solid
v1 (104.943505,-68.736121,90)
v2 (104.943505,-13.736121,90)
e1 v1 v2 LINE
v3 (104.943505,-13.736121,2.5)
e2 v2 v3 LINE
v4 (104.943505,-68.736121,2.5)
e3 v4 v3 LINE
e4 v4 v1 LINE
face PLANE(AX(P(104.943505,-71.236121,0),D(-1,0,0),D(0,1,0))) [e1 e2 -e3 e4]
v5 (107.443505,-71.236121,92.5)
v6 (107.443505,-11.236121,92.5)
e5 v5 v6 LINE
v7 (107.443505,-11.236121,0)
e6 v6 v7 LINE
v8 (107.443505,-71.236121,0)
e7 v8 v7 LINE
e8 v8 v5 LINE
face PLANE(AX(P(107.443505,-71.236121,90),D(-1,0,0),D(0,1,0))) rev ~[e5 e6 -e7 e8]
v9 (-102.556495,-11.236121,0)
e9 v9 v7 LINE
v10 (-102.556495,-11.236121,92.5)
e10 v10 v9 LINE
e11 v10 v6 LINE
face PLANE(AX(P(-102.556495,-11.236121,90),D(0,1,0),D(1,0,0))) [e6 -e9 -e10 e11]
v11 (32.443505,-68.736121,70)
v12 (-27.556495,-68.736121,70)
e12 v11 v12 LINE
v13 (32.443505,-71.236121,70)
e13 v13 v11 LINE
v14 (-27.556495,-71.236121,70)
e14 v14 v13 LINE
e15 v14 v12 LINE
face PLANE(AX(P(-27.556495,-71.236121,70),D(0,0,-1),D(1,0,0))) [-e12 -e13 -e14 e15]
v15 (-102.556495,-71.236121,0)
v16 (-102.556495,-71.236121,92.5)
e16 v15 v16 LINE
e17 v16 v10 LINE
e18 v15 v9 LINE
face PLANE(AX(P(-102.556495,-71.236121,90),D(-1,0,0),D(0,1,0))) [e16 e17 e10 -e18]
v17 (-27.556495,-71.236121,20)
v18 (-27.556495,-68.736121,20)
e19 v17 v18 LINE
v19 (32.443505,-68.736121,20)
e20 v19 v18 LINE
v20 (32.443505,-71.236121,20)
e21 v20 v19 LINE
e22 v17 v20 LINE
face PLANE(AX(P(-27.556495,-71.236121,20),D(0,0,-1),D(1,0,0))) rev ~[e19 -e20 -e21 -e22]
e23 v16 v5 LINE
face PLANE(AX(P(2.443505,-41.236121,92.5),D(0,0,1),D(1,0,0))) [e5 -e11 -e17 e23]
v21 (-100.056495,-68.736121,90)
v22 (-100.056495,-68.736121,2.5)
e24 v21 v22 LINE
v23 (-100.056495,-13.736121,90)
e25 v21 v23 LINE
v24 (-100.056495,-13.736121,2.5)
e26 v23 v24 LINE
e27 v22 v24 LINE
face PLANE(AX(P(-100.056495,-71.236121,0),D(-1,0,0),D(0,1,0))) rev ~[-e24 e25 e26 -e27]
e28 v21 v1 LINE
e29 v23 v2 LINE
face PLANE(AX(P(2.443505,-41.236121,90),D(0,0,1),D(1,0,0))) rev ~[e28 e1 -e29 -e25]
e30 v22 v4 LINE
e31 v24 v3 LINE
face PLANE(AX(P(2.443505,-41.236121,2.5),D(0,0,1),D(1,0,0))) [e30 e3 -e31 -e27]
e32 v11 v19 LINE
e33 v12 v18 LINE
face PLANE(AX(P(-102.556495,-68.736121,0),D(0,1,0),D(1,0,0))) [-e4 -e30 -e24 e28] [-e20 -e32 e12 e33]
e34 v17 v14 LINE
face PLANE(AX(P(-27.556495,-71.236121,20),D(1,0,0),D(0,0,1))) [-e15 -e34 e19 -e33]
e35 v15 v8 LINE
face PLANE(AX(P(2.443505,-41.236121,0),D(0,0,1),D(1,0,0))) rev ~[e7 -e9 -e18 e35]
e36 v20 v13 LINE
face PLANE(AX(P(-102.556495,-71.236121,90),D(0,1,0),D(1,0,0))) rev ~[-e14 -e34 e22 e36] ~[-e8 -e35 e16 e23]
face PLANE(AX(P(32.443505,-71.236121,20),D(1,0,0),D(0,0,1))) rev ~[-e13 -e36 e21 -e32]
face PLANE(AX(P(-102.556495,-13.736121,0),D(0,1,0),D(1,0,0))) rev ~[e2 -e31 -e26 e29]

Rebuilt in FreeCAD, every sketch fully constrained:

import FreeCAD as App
import Part
import Sketcher

V = App.Vector


def faces_at(feature, points):
    """Names of the faces that lie closest to the given points."""
    faces = feature.Shape.Faces
    near = lambda p: min(range(len(faces)), key=lambda i: faces[i].distToShape(Part.Vertex(*p))[0])
    return sorted({f"Face{near(p) + 1}" for p in points})


def add_polygon(sketch, points):
    """Adds a closed chain of lines whose ends are joined by coincident constraints."""
    first, n = sketch.GeometryCount, len(points)
    for a, b in zip(points, points[1:] + points[:1]):
        sketch.addGeometry(Part.LineSegment(App.Vector(*a, 0), App.Vector(*b, 0)), False)
    for i in range(n):
        sketch.addConstraint(Sketcher.Constraint("Coincident", first + i, 2, first + (i + 1) % n, 1))

doc = App.newDocument("Part")
body = doc.addObject("PartDesign::Body", "Body")

sketch1 = body.newObject("Sketcher::SketchObject", "Sketch")
sketch1.AttachmentSupport = (doc.getObject("XY_Plane"), [""])
sketch1.MapMode = "FlatFace"
add_polygon(sketch1, [(-102.556495, -11.236121), (-102.556495, -71.236121), (107.443505, -71.236121), (107.443505, -11.236121)])
sketch1.addConstraint([
    Sketcher.Constraint("Vertical", 0),
    Sketcher.Constraint("Horizontal", 1),
    Sketcher.Constraint("Vertical", 2),
    Sketcher.Constraint("Horizontal", 3),
    Sketcher.Constraint("DistanceX", 1, 1, 1, 2, 210.0),
    Sketcher.Constraint("DistanceY", 0, 2, 0, 1, 60.0),
    Sketcher.Constraint("DistanceY", 0, 2, -1, 1, 71.236121),
    Sketcher.Constraint("DistanceX", 0, 2, -1, 1, 102.556495),
])
pad1 = body.newObject("PartDesign::Pad", "Pad")
pad1.Profile = sketch1
pad1.Length = 90
doc.recompute()

thickness = body.newObject("PartDesign::Thickness", "Thickness")
thickness.Base = (pad1, faces_at(pad1, [(2.444, -41.236, 90)]))
thickness.Value = 2.5
thickness.Reversed = True
thickness.Join = "Arc"

sketch2 = body.newObject("Sketcher::SketchObject", "Sketch001")
sketch2.AttachmentSupport = (doc.getObject("XY_Plane"), [""])
sketch2.MapMode = "FlatFace"
sketch2.AttachmentOffset = App.Placement(V(0, 0, 90), App.Rotation())
add_polygon(sketch2, [(-102.556495, -11.236121), (-102.556495, -71.236121), (107.443505, -71.236121), (107.443505, -11.236121)])
sketch2.addConstraint([
    Sketcher.Constraint("Vertical", 0),
    Sketcher.Constraint("Horizontal", 1),
    Sketcher.Constraint("Vertical", 2),
    Sketcher.Constraint("Horizontal", 3),
    Sketcher.Constraint("DistanceX", 1, 1, 1, 2, 210.0),
    Sketcher.Constraint("DistanceY", 0, 2, 0, 1, 60.0),
    Sketcher.Constraint("DistanceY", 0, 2, -1, 1, 71.236121),
    Sketcher.Constraint("DistanceX", 0, 2, -1, 1, 102.556495),
])
pad2 = body.newObject("PartDesign::Pad", "Pad001")
pad2.Profile = sketch2
pad2.Length = 2.5

sketch3 = body.newObject("Sketcher::SketchObject", "Sketch002")
sketch3.AttachmentSupport = (doc.getObject("XZ_Plane"), [""])
sketch3.MapMode = "FlatFace"
sketch3.AttachmentOffset = App.Placement(V(0, 0, 71.236121), App.Rotation())
add_polygon(sketch3, [(-27.556495, 70), (-27.556495, 20), (32.443505, 20), (32.443505, 70)])
sketch3.addConstraint([
    Sketcher.Constraint("Vertical", 0),
    Sketcher.Constraint("Horizontal", 1),
    Sketcher.Constraint("Vertical", 2),
    Sketcher.Constraint("Horizontal", 3),
    Sketcher.Constraint("DistanceX", 1, 1, 1, 2, 60.0),
    Sketcher.Constraint("DistanceY", 0, 2, 0, 1, 50.0),
    Sketcher.Constraint("DistanceY", -1, 1, 0, 2, 20.0),
    Sketcher.Constraint("DistanceX", 0, 2, -1, 1, 27.556495),
])
pocket1 = body.newObject("PartDesign::Pocket", "Pocket")
pocket1.Profile = sketch3
pocket1.Length = 25

doc.recompute()
